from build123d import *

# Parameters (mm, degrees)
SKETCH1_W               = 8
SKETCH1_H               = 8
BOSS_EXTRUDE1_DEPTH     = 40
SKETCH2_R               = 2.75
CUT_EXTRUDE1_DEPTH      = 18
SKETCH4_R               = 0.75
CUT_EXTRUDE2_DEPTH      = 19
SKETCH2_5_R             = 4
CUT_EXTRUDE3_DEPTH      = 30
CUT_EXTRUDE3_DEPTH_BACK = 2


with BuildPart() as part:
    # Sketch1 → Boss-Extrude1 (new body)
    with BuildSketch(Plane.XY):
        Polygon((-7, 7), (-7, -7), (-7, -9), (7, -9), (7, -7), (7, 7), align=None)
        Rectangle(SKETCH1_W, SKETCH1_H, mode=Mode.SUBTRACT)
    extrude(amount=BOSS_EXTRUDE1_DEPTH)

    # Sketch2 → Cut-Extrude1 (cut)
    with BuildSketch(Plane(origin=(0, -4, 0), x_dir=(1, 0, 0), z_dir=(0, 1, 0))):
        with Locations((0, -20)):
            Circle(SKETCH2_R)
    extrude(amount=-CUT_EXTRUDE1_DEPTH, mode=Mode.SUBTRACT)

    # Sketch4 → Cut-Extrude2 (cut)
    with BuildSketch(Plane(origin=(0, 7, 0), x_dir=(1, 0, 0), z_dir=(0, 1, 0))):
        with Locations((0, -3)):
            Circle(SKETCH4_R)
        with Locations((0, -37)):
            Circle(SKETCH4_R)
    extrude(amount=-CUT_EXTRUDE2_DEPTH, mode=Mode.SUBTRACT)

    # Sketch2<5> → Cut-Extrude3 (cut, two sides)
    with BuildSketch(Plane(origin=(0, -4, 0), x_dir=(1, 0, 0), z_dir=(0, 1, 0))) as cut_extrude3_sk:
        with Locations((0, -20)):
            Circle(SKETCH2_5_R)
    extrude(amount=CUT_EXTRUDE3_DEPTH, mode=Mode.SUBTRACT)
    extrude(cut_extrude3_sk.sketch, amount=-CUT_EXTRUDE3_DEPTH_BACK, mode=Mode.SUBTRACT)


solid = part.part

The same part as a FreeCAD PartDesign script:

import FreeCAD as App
import Part
import Sketcher
from FreeCAD import Vector
Q = App.Units.Quantity

doc = App.newDocument("Part")
body = doc.addObject("PartDesign::Body", "Body")

# Sketch on XY plane
sketch1 = body.newObject("Sketcher::SketchObject", "Sketch")
sketch1.AttachmentSupport = (doc.getObject("XY_Plane"), [""])
sketch1.MapMode = "FlatFace"
sketch1.addGeometry([
    Part.LineSegment(Vector(-7, 7, 0), Vector(-7, -9, 0)),  # 0
    Part.LineSegment(Vector(-7, -9, 0), Vector(7, -9, 0)),  # 1
    Part.LineSegment(Vector(7, -9, 0), Vector(7, 7, 0)),  # 2
    Part.LineSegment(Vector(7, 7, 0), Vector(-7, 7, 0)),  # 3
    Part.LineSegment(Vector(4, -4, 0), Vector(-4, -4, 0)),  # 4
    Part.LineSegment(Vector(-4, -4, 0), Vector(-4, 4, 0)),  # 5
    Part.LineSegment(Vector(-4, 4, 0), Vector(4, 4, 0)),  # 6
    Part.LineSegment(Vector(4, 4, 0), Vector(4, -4, 0)),  # 7
], False)
sketch1.addConstraint([
    Sketcher.Constraint("Coincident", 0, 2, 1, 1),
    Sketcher.Constraint("Coincident", 1, 2, 2, 1),
    Sketcher.Constraint("Coincident", 2, 2, 3, 1),
    Sketcher.Constraint("Coincident", 3, 2, 0, 1),
    Sketcher.Constraint("Coincident", 4, 2, 5, 1),
    Sketcher.Constraint("Coincident", 5, 2, 6, 1),
    Sketcher.Constraint("Coincident", 6, 2, 7, 1),
    Sketcher.Constraint("Coincident", 7, 2, 4, 1),
    Sketcher.Constraint("Vertical", 0),
    Sketcher.Constraint("Horizontal", 1),
    Sketcher.Constraint("Vertical", 2),
    Sketcher.Constraint("Horizontal", 3),
    Sketcher.Constraint("Horizontal", 4),
    Sketcher.Constraint("Vertical", 5),
    Sketcher.Constraint("Horizontal", 6),
    Sketcher.Constraint("Vertical", 7),
    Sketcher.Constraint("Symmetric", 4, 2, 6, 2, -1, 1),
    Sketcher.Constraint("Equal", 6, 5),
    Sketcher.Constraint("DistanceX", 1, 1, 1, 2, Q("14 mm")),
    Sketcher.Constraint("DistanceX", 4, 2, 4, 1, Q("8 mm")),
    Sketcher.Constraint("DistanceY", 0, 2, 0, 1, Q("16 mm")),
    Sketcher.Constraint("DistanceX", 0, 2, -1, 1, Q("7 mm")),
    Sketcher.Constraint("DistanceY", 0, 2, -1, 1, Q("9 mm")),
])
pad1 = body.newObject("PartDesign::Pad", "Pad")
pad1.Profile = sketch1
pad1.Length = 40

# Sketch on XZ plane
sketch2 = body.newObject("Sketcher::SketchObject", "Sketch001")
sketch2.AttachmentSupport = (doc.getObject("XZ_Plane"), [""])
sketch2.MapMode = "FlatFace"
sketch2.AttachmentOffset = App.Placement(Vector(0, 0, 4), App.Rotation())
sketch2.addGeometry(Part.Circle(Vector(0, 20, 0), Vector(0, 0, 1), 2.8), False)
sketch2.addConstraint([
    Sketcher.Constraint("PointOnObject", 0, 3, -2),
    Sketcher.Constraint("Diameter", 0, Q("5.5 mm")),
    Sketcher.Constraint("DistanceY", -1, 1, 0, 3, Q("20 mm")),
])
pocket1 = body.newObject("PartDesign::Pocket", "Pocket")
pocket1.Profile = sketch2
pocket1.Length = 18
pocket1.Reversed = True

# Sketch on XZ plane
sketch3 = body.newObject("Sketcher::SketchObject", "Sketch002")
sketch3.AttachmentSupport = (doc.getObject("XZ_Plane"), [""])
sketch3.MapMode = "FlatFace"
sketch3.AttachmentOffset = App.Placement(Vector(0, 0, -7), App.Rotation())
sketch3.addGeometry([
    Part.Circle(Vector(0, 3, 0), Vector(0, 0, 1), 0.8),
    Part.Circle(Vector(0, 37, 0), Vector(0, 0, 1), 0.8),
], False)
sketch3.addConstraint([
    Sketcher.Constraint("Equal", 0, 1),
    Sketcher.Constraint("PointOnObject", 0, 3, -2),
    Sketcher.Constraint("PointOnObject", 1, 3, -2),
    Sketcher.Constraint("Diameter", 0, Q("1.5 mm")),
    Sketcher.Constraint("DistanceY", -1, 1, 0, 3, Q("3 mm")),
    Sketcher.Constraint("DistanceY", -1, 1, 1, 3, Q("37 mm")),
])
pocket2 = body.newObject("PartDesign::Pocket", "Pocket001")
pocket2.Profile = sketch3
pocket2.Length = 19
pocket2.Reversed = True

# Sketch on XZ plane
sketch4 = body.newObject("Sketcher::SketchObject", "Sketch003")
sketch4.AttachmentSupport = (doc.getObject("XZ_Plane"), [""])
sketch4.MapMode = "FlatFace"
sketch4.AttachmentOffset = App.Placement(Vector(0, 0, 4), App.Rotation())
sketch4.addGeometry(Part.Circle(Vector(0, 20, 0), Vector(0, 0, 1), 4), False)
sketch4.addConstraint([
    Sketcher.Constraint("PointOnObject", 0, 3, -2),
    Sketcher.Constraint("Diameter", 0, Q("8 mm")),
    Sketcher.Constraint("DistanceY", -1, 1, 0, 3, Q("20 mm")),
])
pocket3 = body.newObject("PartDesign::Pocket", "Pocket002")
pocket3.Profile = sketch4
pocket3.Type = "TwoLengths"
pocket3.Length = 30
pocket3.Length2 = 2

doc.recompute()
